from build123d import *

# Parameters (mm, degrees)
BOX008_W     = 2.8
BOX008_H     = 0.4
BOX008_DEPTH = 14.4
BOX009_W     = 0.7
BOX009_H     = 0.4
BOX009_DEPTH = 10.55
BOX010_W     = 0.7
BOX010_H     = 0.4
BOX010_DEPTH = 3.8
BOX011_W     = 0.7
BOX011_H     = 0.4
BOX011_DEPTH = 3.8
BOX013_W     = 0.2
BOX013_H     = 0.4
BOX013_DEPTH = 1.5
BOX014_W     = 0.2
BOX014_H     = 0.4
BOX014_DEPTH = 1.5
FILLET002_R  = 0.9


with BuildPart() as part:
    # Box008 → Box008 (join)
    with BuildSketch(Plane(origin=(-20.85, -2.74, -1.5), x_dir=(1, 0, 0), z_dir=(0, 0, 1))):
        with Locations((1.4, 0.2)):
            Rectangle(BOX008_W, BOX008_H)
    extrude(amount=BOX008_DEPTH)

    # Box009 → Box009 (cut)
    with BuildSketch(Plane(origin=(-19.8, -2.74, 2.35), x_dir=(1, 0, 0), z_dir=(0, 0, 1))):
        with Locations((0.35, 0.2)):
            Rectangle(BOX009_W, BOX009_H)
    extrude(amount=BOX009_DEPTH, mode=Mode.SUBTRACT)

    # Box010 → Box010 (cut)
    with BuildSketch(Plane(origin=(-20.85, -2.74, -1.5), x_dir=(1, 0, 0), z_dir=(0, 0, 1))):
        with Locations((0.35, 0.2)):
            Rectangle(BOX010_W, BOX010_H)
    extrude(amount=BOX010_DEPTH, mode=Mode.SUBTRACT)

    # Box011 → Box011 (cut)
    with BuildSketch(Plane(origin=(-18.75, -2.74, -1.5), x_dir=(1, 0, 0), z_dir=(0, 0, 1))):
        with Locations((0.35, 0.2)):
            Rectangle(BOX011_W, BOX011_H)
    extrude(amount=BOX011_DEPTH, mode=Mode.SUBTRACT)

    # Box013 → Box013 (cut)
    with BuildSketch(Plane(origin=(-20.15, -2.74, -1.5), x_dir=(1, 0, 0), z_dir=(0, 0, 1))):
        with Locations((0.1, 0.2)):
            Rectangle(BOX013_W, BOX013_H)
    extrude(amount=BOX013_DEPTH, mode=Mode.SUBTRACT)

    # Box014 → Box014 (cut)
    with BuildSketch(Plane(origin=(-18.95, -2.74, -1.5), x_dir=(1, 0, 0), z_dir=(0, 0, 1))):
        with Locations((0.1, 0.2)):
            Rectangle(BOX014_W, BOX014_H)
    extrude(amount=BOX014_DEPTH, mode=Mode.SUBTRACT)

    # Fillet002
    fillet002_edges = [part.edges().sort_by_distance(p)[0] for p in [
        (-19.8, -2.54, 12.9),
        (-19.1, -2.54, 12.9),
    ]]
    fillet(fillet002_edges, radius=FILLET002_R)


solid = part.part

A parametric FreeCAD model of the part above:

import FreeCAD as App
import Part
import Sketcher

V = App.Vector


def edges_at(feature, points):
    """Names of the edges that pass closest to the given points."""
    edges = feature.Shape.Edges
    near = lambda p: min(range(len(edges)), key=lambda i: edges[i].distToShape(Part.Vertex(*p))[0])
    return sorted({f"Edge{near(p) + 1}" for p in points})

doc = App.newDocument("Part")
body = doc.addObject("PartDesign::Body", "Body")

# Sketch on XY plane
sketch1 = doc.addObject("Sketcher::SketchObject", "Sketch")
body.addObject(sketch1)
sketch1.AttachmentSupport = (doc.XY_Plane, [""])
sketch1.MapMode = "FlatFace"
sketch1.AttachmentOffset = App.Placement(V(0, 0, -1.5), App.Rotation())
sketch1.addGeometry([
    Part.LineSegment(V(-20.85, -2.34, 0), V(-20.85, -2.74, 0)),
    Part.LineSegment(V(-20.85, -2.74, 0), V(-18.05, -2.74, 0)),
    Part.LineSegment(V(-18.05, -2.74, 0), V(-18.05, -2.34, 0)),
    Part.LineSegment(V(-18.05, -2.34, 0), V(-20.85, -2.34, 0)),
], False)
sketch1.addConstraint([
    Sketcher.Constraint("Coincident", 0, 2, 1, 1),
    Sketcher.Constraint("Coincident", 1, 2, 2, 1),
    Sketcher.Constraint("Coincident", 2, 2, 3, 1),
    Sketcher.Constraint("Coincident", 3, 2, 0, 1),
    Sketcher.Constraint("Vertical", 0),
    Sketcher.Constraint("Horizontal", 1),
    Sketcher.Constraint("Vertical", 2),
    Sketcher.Constraint("Horizontal", 3),
    Sketcher.Constraint("DistanceX", 1, 1, 1, 2, 2.8),
    Sketcher.Constraint("DistanceY", 0, 2, 0, 1, 0.4),
    Sketcher.Constraint("DistanceX", 0, 2, -1, 1, 20.85),
    Sketcher.Constraint("DistanceY", 0, 2, -1, 1, 2.74),
])
pad1 = doc.addObject("PartDesign::Pad", "Pad")
body.addObject(pad1)
pad1.Profile = sketch1
pad1.Length = 14.4

# Sketch on XY plane
sketch2 = doc.addObject("Sketcher::SketchObject", "Sketch001")
body.addObject(sketch2)
sketch2.AttachmentSupport = (doc.XY_Plane, [""])
sketch2.MapMode = "FlatFace"
sketch2.AttachmentOffset = App.Placement(V(0, 0, 2.35), App.Rotation())
sketch2.addGeometry([
    Part.LineSegment(V(-19.8, -2.34, 0), V(-19.8, -2.74, 0)),
    Part.LineSegment(V(-19.8, -2.74, 0), V(-19.1, -2.74, 0)),
    Part.LineSegment(V(-19.1, -2.74, 0), V(-19.1, -2.34, 0)),
    Part.LineSegment(V(-19.1, -2.34, 0), V(-19.8, -2.34, 0)),
], False)
sketch2.addConstraint([
    Sketcher.Constraint("Coincident", 0, 2, 1, 1),
    Sketcher.Constraint("Coincident", 1, 2, 2, 1),
    Sketcher.Constraint("Coincident", 2, 2, 3, 1),
    Sketcher.Constraint("Coincident", 3, 2, 0, 1),
    Sketcher.Constraint("Vertical", 0),
    Sketcher.Constraint("Horizontal", 1),
    Sketcher.Constraint("Vertical", 2),
    Sketcher.Constraint("Horizontal", 3),
    Sketcher.Constraint("DistanceX", 1, 1, 1, 2, 0.7),
    Sketcher.Constraint("DistanceY", 0, 2, 0, 1, 0.4),
    Sketcher.Constraint("DistanceX", 0, 2, -1, 1, 19.8),
    Sketcher.Constraint("DistanceY", 0, 2, -1, 1, 2.74),
])
pocket1 = doc.addObject("PartDesign::Pocket", "Pocket")
body.addObject(pocket1)
pocket1.Profile = sketch2
pocket1.Length = 10.55
pocket1.Reversed = True

# Sketch on XY plane
sketch3 = doc.addObject("Sketcher::SketchObject", "Sketch002")
body.addObject(sketch3)
sketch3.AttachmentSupport = (doc.XY_Plane, [""])
sketch3.MapMode = "FlatFace"
sketch3.AttachmentOffset = App.Placement(V(0, 0, -1.5), App.Rotation())
sketch3.addGeometry([
    Part.LineSegment(V(-20.85, -2.34, 0), V(-20.85, -2.74, 0)),
    Part.LineSegment(V(-20.85, -2.74, 0), V(-20.15, -2.74, 0)),
    Part.LineSegment(V(-20.15, -2.74, 0), V(-20.15, -2.34, 0)),
    Part.LineSegment(V(-20.15, -2.34, 0), V(-20.85, -2.34, 0)),
], False)
sketch3.addConstraint([
    Sketcher.Constraint("Coincident", 0, 2, 1, 1),
    Sketcher.Constraint("Coincident", 1, 2, 2, 1),
    Sketcher.Constraint("Coincident", 2, 2, 3, 1),
    Sketcher.Constraint("Coincident", 3, 2, 0, 1),
    Sketcher.Constraint("Vertical", 0),
    Sketcher.Constraint("Horizontal", 1),
    Sketcher.Constraint("Vertical", 2),
    Sketcher.Constraint("Horizontal", 3),
    Sketcher.Constraint("DistanceX", 1, 1, 1, 2, 0.7),
    Sketcher.Constraint("DistanceY", 0, 2, 0, 1, 0.4),
    Sketcher.Constraint("DistanceX", 0, 2, -1, 1, 20.85),
    Sketcher.Constraint("DistanceY", 0, 2, -1, 1, 2.74),
])
pocket2 = doc.addObject("PartDesign::Pocket", "Pocket001")
body.addObject(pocket2)
pocket2.Profile = sketch3
pocket2.Length = 3.8
pocket2.Reversed = True

# Sketch on XY plane
sketch4 = doc.addObject("Sketcher::SketchObject", "Sketch003")
body.addObject(sketch4)
sketch4.AttachmentSupport = (doc.XY_Plane, [""])
sketch4.MapMode = "FlatFace"
sketch4.AttachmentOffset = App.Placement(V(0, 0, -1.5), App.Rotation())
sketch4.addGeometry([
    Part.LineSegment(V(-18.75, -2.34, 0), V(-18.75, -2.74, 0)),
    Part.LineSegment(V(-18.75, -2.74, 0), V(-18.05, -2.74, 0)),
    Part.LineSegment(V(-18.05, -2.74, 0), V(-18.05, -2.34, 0)),
    Part.LineSegment(V(-18.05, -2.34, 0), V(-18.75, -2.34, 0)),
], False)
sketch4.addConstraint([
    Sketcher.Constraint("Coincident", 0, 2, 1, 1),
    Sketcher.Constraint("Coincident", 1, 2, 2, 1),
    Sketcher.Constraint("Coincident", 2, 2, 3, 1),
    Sketcher.Constraint("Coincident", 3, 2, 0, 1),
    Sketcher.Constraint("Vertical", 0),
    Sketcher.Constraint("Horizontal", 1),
    Sketcher.Constraint("Vertical", 2),
    Sketcher.Constraint("Horizontal", 3),
    Sketcher.Constraint("DistanceX", 1, 1, 1, 2, 0.7),
    Sketcher.Constraint("DistanceY", 0, 2, 0, 1, 0.4),
    Sketcher.Constraint("DistanceX", 0, 2, -1, 1, 18.75),
    Sketcher.Constraint("DistanceY", 0, 2, -1, 1, 2.74),
])
pocket3 = doc.addObject("PartDesign::Pocket", "Pocket002")
body.addObject(pocket3)
pocket3.Profile = sketch4
pocket3.Length = 3.8
pocket3.Reversed = True

# Sketch on XY plane
sketch5 = doc.addObject("Sketcher::SketchObject", "Sketch004")
body.addObject(sketch5)
sketch5.AttachmentSupport = (doc.XY_Plane, [""])
sketch5.MapMode = "FlatFace"
sketch5.AttachmentOffset = App.Placement(V(0, 0, -1.5), App.Rotation())
sketch5.addGeometry([
    Part.LineSegment(V(-20.15, -2.34, 0), V(-20.15, -2.74, 0)),
    Part.LineSegment(V(-20.15, -2.74, 0), V(-19.95, -2.74, 0)),
    Part.LineSegment(V(-19.95, -2.74, 0), V(-19.95, -2.34, 0)),
    Part.LineSegment(V(-19.95, -2.34, 0), V(-20.15, -2.34, 0)),
], False)
sketch5.addConstraint([
    Sketcher.Constraint("Coincident", 0, 2, 1, 1),
    Sketcher.Constraint("Coincident", 1, 2, 2, 1),
    Sketcher.Constraint("Coincident", 2, 2, 3, 1),
    Sketcher.Constraint("Coincident", 3, 2, 0, 1),
    Sketcher.Constraint("Vertical", 0),
    Sketcher.Constraint("Horizontal", 1),
    Sketcher.Constraint("Vertical", 2),
    Sketcher.Constraint("Horizontal", 3),
    Sketcher.Constraint("DistanceX", 1, 1, 1, 2, 0.2),
    Sketcher.Constraint("DistanceY", 0, 2, 0, 1, 0.4),
    Sketcher.Constraint("DistanceX", 0, 2, -1, 1, 20.15),
    Sketcher.Constraint("DistanceY", 0, 2, -1, 1, 2.74),
])
pocket4 = doc.addObject("PartDesign::Pocket", "Pocket003")
body.addObject(pocket4)
pocket4.Profile = sketch5
pocket4.Length = 1.5
pocket4.Reversed = True

# Sketch on XY plane
sketch6 = doc.addObject("Sketcher::SketchObject", "Sketch005")
body.addObject(sketch6)
sketch6.AttachmentSupport = (doc.XY_Plane, [""])
sketch6.MapMode = "FlatFace"
sketch6.AttachmentOffset = App.Placement(V(0, 0, -1.5), App.Rotation())
sketch6.addGeometry([
    Part.LineSegment(V(-18.95, -2.34, 0), V(-18.95, -2.74, 0)),
    Part.LineSegment(V(-18.95, -2.74, 0), V(-18.75, -2.74, 0)),
    Part.LineSegment(V(-18.75, -2.74, 0), V(-18.75, -2.34, 0)),
    Part.LineSegment(V(-18.75, -2.34, 0), V(-18.95, -2.34, 0)),
], False)
sketch6.addConstraint([
    Sketcher.Constraint("Coincident", 0, 2, 1, 1),
    Sketcher.Constraint("Coincident", 1, 2, 2, 1),
    Sketcher.Constraint("Coincident", 2, 2, 3, 1),
    Sketcher.Constraint("Coincident", 3, 2, 0, 1),
    Sketcher.Constraint("Vertical", 0),
    Sketcher.Constraint("Horizontal", 1),
    Sketcher.Constraint("Vertical", 2),
    Sketcher.Constraint("Horizontal", 3),
    Sketcher.Constraint("DistanceX", 1, 1, 1, 2, 0.2),
    Sketcher.Constraint("DistanceY", 0, 2, 0, 1, 0.4),
    Sketcher.Constraint("DistanceX", 0, 2, -1, 1, 18.95),
    Sketcher.Constraint("DistanceY", 0, 2, -1, 1, 2.74),
])
pocket5 = doc.addObject("PartDesign::Pocket", "Pocket004")
body.addObject(pocket5)
pocket5.Profile = sketch6
pocket5.Length = 1.5
pocket5.Reversed = True
doc.recompute()

fillet = doc.addObject("PartDesign::Fillet", "Fillet")
body.addObject(fillet)
fillet.Base = (pocket5, edges_at(pocket5, [(-19.8, -2.54, 12.9), (-19.1, -2.54, 12.9)]))
fillet.Radius = 0.9

doc.recompute()
